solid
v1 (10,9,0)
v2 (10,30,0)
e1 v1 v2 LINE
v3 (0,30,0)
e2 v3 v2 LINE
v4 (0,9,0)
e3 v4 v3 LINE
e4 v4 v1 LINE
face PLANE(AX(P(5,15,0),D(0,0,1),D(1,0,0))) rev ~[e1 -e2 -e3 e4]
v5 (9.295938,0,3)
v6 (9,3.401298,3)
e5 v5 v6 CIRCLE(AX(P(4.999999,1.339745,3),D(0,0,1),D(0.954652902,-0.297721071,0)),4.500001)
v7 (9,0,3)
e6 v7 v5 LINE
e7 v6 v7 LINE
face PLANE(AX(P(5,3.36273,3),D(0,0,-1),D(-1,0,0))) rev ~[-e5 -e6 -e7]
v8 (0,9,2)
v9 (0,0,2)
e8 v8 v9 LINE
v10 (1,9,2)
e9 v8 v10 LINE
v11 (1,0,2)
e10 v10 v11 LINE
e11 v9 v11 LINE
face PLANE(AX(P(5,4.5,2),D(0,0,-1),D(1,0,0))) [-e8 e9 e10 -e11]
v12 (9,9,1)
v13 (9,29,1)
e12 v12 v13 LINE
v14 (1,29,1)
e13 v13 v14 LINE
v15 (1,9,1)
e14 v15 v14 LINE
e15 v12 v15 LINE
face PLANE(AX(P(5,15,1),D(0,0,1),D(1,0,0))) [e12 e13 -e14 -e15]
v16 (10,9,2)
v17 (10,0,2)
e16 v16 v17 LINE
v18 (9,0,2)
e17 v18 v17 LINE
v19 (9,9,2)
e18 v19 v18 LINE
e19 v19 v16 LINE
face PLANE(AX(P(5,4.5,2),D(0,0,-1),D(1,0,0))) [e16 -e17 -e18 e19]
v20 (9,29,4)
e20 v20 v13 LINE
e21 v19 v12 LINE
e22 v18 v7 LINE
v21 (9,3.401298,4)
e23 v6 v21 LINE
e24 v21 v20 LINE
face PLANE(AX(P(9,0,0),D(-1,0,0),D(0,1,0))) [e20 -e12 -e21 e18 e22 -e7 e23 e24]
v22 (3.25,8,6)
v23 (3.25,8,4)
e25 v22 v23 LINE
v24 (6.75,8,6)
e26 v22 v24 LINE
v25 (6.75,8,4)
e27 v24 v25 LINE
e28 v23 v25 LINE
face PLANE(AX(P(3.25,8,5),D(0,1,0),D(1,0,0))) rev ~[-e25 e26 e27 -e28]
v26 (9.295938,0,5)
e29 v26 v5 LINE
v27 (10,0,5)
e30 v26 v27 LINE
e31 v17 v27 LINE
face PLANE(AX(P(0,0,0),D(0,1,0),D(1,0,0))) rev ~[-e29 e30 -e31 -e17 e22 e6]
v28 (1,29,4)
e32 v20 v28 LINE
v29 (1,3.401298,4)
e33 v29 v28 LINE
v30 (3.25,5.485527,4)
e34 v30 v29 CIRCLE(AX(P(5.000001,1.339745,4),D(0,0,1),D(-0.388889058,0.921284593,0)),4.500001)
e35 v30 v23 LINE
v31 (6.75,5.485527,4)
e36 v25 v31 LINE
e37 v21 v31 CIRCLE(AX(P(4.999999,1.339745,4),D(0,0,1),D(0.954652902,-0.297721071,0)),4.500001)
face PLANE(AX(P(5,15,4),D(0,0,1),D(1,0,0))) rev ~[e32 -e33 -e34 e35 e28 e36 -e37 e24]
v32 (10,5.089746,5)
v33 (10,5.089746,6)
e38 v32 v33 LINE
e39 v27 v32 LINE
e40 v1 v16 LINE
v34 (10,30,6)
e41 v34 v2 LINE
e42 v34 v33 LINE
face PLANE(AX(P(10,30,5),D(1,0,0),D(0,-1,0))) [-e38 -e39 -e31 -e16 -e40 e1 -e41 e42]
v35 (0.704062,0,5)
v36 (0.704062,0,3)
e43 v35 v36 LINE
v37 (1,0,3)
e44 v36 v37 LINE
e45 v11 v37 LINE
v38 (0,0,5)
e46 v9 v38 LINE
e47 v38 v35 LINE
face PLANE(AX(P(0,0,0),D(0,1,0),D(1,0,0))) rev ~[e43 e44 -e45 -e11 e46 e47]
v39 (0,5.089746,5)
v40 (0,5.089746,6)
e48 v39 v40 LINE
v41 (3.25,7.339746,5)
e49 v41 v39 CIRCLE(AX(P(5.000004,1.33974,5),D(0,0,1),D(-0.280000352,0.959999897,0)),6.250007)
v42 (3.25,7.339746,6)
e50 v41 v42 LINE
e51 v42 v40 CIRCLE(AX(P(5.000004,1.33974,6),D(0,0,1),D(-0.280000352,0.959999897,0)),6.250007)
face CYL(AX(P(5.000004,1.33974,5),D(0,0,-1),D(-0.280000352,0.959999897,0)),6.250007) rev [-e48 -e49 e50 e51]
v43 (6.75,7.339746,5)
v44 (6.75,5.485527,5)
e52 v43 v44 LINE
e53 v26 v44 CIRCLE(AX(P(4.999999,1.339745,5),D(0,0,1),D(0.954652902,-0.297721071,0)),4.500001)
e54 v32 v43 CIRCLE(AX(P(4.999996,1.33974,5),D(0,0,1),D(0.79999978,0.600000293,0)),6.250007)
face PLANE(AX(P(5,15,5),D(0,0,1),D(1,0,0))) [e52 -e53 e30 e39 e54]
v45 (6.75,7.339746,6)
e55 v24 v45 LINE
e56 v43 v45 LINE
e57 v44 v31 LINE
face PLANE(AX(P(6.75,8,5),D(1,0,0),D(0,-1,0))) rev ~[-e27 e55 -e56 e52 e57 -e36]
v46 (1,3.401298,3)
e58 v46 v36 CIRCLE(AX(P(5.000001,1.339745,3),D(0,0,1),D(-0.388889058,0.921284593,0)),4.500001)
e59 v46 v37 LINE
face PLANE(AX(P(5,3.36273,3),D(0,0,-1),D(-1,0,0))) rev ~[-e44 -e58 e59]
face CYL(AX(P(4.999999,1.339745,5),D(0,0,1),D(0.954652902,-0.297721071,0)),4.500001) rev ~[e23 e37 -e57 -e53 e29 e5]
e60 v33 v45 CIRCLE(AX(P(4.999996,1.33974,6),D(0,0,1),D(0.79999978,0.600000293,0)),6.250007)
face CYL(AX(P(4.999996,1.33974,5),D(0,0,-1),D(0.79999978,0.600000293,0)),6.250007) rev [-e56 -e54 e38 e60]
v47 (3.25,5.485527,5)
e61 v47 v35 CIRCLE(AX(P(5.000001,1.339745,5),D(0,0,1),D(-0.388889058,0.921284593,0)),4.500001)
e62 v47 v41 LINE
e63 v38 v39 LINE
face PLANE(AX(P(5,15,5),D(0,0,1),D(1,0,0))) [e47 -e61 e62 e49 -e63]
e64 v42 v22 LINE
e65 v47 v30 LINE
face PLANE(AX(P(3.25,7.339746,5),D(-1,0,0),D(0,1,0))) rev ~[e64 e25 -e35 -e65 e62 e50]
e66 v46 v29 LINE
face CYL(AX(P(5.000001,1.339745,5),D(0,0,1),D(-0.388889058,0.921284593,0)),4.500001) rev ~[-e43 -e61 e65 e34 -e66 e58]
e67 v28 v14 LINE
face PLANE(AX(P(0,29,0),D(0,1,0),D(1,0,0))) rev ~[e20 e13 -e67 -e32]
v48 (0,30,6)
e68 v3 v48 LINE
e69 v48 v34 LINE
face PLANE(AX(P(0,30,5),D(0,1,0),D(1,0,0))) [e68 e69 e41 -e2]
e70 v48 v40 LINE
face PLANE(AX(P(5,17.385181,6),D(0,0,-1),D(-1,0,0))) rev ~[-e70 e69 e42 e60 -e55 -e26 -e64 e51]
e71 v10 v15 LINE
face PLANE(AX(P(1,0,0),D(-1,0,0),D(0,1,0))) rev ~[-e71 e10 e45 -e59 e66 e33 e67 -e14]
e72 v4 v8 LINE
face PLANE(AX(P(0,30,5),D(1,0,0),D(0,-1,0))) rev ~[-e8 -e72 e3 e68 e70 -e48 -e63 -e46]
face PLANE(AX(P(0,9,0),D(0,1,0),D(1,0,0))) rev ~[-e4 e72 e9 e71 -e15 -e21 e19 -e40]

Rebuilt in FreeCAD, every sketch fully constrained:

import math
import FreeCAD as App
import Part
import Sketcher


def faces_at(feature, points):
    """Names of the faces that lie closest to the given points."""
    faces = feature.Shape.Faces
    near = lambda p: min(range(len(faces)), key=lambda i: faces[i].distToShape(Part.Vertex(*p))[0])
    return sorted({f"Face{near(p) + 1}" for p in points})

doc = App.newDocument("Part")
params = doc.addObject("Spreadsheet::Sheet", "Params")
for row, (alias, value) in enumerate([
    ("sketch1_width", "10 mm"),
    ("sketch1_height", "30 mm"),
    ("pad1_length", "5 mm"),
    ("thickness_wall", "1 mm"),
    ("sketch2_radius", "4.500001 mm"),
    ("sketch2_width", "3.5 mm"),
    ("pocket1_length", "2 mm"),
    ("sketch3_width", "10 mm"),
    ("sketch3_height", "9 mm"),
    ("pocket2_length", "2 mm"),
    ("sketch4_width", "10 mm"),
    ("sketch4_width2", "3.5 mm"),
    ("pad2_length", "1 mm"),
], start=1):
    params.set(f"A{row}", alias)
    params.set(f"B{row}", "=" + value)
    params.setAlias(f"B{row}", alias)

body = doc.addObject("PartDesign::Body", "Body")

sketch1 = doc.addObject("Sketcher::SketchObject", "Sketch")
body.addObject(sketch1)
sketch1.AttachmentSupport = (doc.XY_Plane, [""])
sketch1.MapMode = "FlatFace"
sketch1.addGeometry(Part.LineSegment(App.Vector(0, 30, 0), App.Vector(0, 0, 0)), False)
sketch1.addGeometry(Part.LineSegment(App.Vector(0, 0, 0), App.Vector(10, 0, 0)), False)
sketch1.addGeometry(Part.LineSegment(App.Vector(10, 0, 0), App.Vector(10, 30, 0)), False)
sketch1.addGeometry(Part.LineSegment(App.Vector(10, 30, 0), App.Vector(0, 30, 0)), False)
sketch1.addConstraint(Sketcher.Constraint("Coincident", 0, 2, 1, 1))
sketch1.addConstraint(Sketcher.Constraint("Coincident", 1, 2, 2, 1))
sketch1.addConstraint(Sketcher.Constraint("Coincident", 2, 2, 3, 1))
sketch1.addConstraint(Sketcher.Constraint("Coincident", 3, 2, 0, 1))
sketch1.addConstraint(Sketcher.Constraint("Vertical", 0))
sketch1.addConstraint(Sketcher.Constraint("Horizontal", 1))
sketch1.addConstraint(Sketcher.Constraint("Vertical", 2))
sketch1.addConstraint(Sketcher.Constraint("Horizontal", 3))
sketch1.addConstraint(Sketcher.Constraint("Coincident", 0, 2, -1, 1))
sketch1.addConstraint(Sketcher.Constraint("DistanceX", 1, 1, 1, 2, 10.0))
sketch1.addConstraint(Sketcher.Constraint("DistanceY", 0, 2, 0, 1, 30.0))
sketch1.setExpression("Constraints[9]", "Params.sketch1_width")
sketch1.setExpression("Constraints[10]", "Params.sketch1_height")
pad1 = doc.addObject("PartDesign::Pad", "Pad")
body.addObject(pad1)
pad1.Profile = sketch1
pad1.setExpression("Length", "Params.pad1_length")
doc.recompute()

thickness = doc.addObject("PartDesign::Thickness", "Thickness")
body.addObject(thickness)
thickness.Base = (pad1, faces_at(pad1, [(5, 0, 2.5)]))
thickness.setExpression("Value", "Params.thickness_wall")
thickness.Reversed = True
thickness.Join = "Arc"

sketch2 = doc.addObject("Sketcher::SketchObject", "Sketch001")
body.addObject(sketch2)
sketch2.AttachmentSupport = (doc.XY_Plane, [""])
sketch2.MapMode = "FlatFace"
sketch2.AttachmentOffset = App.Placement(App.Vector(0, 0, 5), App.Rotation())
sketch2.addGeometry(Part.LineSegment(App.Vector(3.2, 8, 0), App.Vector(3.2, 5.5, 0)), False)
sketch2.addGeometry(Part.ArcOfCircle(Part.Circle(App.Vector(5, 1.3, 0), App.Vector(0, 0, 1), 4.5), math.radians(113), math.radians(197)), False)
sketch2.addGeometry(Part.LineSegment(App.Vector(0.7, 0, 0), App.Vector(9.3, 0, 0)), False)
sketch2.addGeometry(Part.ArcOfCircle(Part.Circle(App.Vector(5, 1.3, 0), App.Vector(0, 0, 1), 4.5), math.radians(-17), math.radians(67)), False)
sketch2.addGeometry(Part.LineSegment(App.Vector(6.8, 5.5, 0), App.Vector(6.8, 8, 0)), False)
sketch2.addGeometry(Part.LineSegment(App.Vector(6.8, 8, 0), App.Vector(3.2, 8, 0)), False)
sketch2.addConstraint(Sketcher.Constraint("Coincident", 0, 2, 1, 1))
sketch2.addConstraint(Sketcher.Constraint("Coincident", 1, 2, 2, 1))
sketch2.addConstraint(Sketcher.Constraint("Coincident", 2, 2, 3, 1))
sketch2.addConstraint(Sketcher.Constraint("Coincident", 3, 2, 4, 1))
sketch2.addConstraint(Sketcher.Constraint("Coincident", 4, 2, 5, 1))
sketch2.addConstraint(Sketcher.Constraint("Coincident", 5, 2, 0, 1))
sketch2.addConstraint(Sketcher.Constraint("Vertical", 0))
sketch2.addConstraint(Sketcher.Constraint("Horizontal", 2))
sketch2.addConstraint(Sketcher.Constraint("Vertical", 4))
sketch2.addConstraint(Sketcher.Constraint("Horizontal", 5))
sketch2.addConstraint(Sketcher.Constraint("Coincident", 3, 3, 1, 3))
sketch2.addConstraint(Sketcher.Constraint("Equal", 1, 3))
sketch2.addConstraint(Sketcher.Constraint("PointOnObject", 1, 2, -1))
sketch2.addConstraint(Sketcher.Constraint("Horizontal", 0, 2, 3, 2))
sketch2.addConstraint(Sketcher.Constraint("Radius", 1, 4.500001))
sketch2.addConstraint(Sketcher.Constraint("DistanceX", 5, 2, 5, 1, 3.5))
sketch2.addConstraint(Sketcher.Constraint("DistanceX", -1, 1, 1, 3, 5.000001))
sketch2.addConstraint(Sketcher.Constraint("DistanceY", -1, 1, 4, 2, 8.0))
sketch2.addConstraint(Sketcher.Constraint("DistanceX", 2, 1, 2, 2, 8.591876))
sketch2.setExpression("Constraints[14]", "Params.sketch2_radius")
sketch2.setExpression("Constraints[15]", "Params.sketch2_width")
pocket1 = doc.addObject("PartDesign::Pocket", "Pocket")
body.addObject(pocket1)
pocket1.Profile = sketch2
pocket1.setExpression("Length", "Params.pocket1_length")

sketch3 = doc.addObject("Sketcher::SketchObject", "Sketch002")
body.addObject(sketch3)
sketch3.AttachmentSupport = (doc.XY_Plane, [""])
sketch3.MapMode = "FlatFace"
sketch3.addGeometry(Part.LineSegment(App.Vector(0, 0, 0), App.Vector(0, 9, 0)), False)
sketch3.addGeometry(Part.LineSegment(App.Vector(0, 9, 0), App.Vector(10, 9, 0)), False)
sketch3.addGeometry(Part.LineSegment(App.Vector(10, 9, 0), App.Vector(10, 0, 0)), False)
sketch3.addGeometry(Part.LineSegment(App.Vector(10, 0, 0), App.Vector(0, 0, 0)), False)
sketch3.addConstraint(Sketcher.Constraint("Coincident", 0, 2, 1, 1))
sketch3.addConstraint(Sketcher.Constraint("Coincident", 1, 2, 2, 1))
sketch3.addConstraint(Sketcher.Constraint("Coincident", 2, 2, 3, 1))
sketch3.addConstraint(Sketcher.Constraint("Coincident", 3, 2, 0, 1))
sketch3.addConstraint(Sketcher.Constraint("Vertical", 0))
sketch3.addConstraint(Sketcher.Constraint("Horizontal", 1))
sketch3.addConstraint(Sketcher.Constraint("Vertical", 2))
sketch3.addConstraint(Sketcher.Constraint("Horizontal", 3))
sketch3.addConstraint(Sketcher.Constraint("Coincident", 3, 2, -1, 1))
sketch3.addConstraint(Sketcher.Constraint("DistanceX", 1, 1, 1, 2, 10.0))
sketch3.addConstraint(Sketcher.Constraint("DistanceY", 0, 1, 0, 2, 9.0))
sketch3.setExpression("Constraints[9]", "Params.sketch3_width")
sketch3.setExpression("Constraints[10]", "Params.sketch3_height")
pocket2 = doc.addObject("PartDesign::Pocket", "Pocket001")
body.addObject(pocket2)
pocket2.Profile = sketch3
pocket2.setExpression("Length", "Params.pocket2_length")
pocket2.Reversed = True

sketch4 = doc.addObject("Sketcher::SketchObject", "Sketch003")
body.addObject(sketch4)
sketch4.AttachmentSupport = (doc.XY_Plane, [""])
sketch4.MapMode = "FlatFace"
sketch4.AttachmentOffset = App.Placement(App.Vector(0, 0, 5), App.Rotation())
sketch4.addGeometry(Part.LineSegment(App.Vector(10, 30, 0), App.Vector(0, 30, 0)), False)
sketch4.addGeometry(Part.LineSegment(App.Vector(0, 30, 0), App.Vector(0, 5.1, 0)), False)
sketch4.addGeometry(Part.ArcOfCircle(Part.Circle(App.Vector(5, 1.3, 0), App.Vector(0, 0, 1), 6.3), math.radians(106), math.radians(143)), False)
sketch4.addGeometry(Part.LineSegment(App.Vector(3.2, 7.3, 0), App.Vector(3.2, 8, 0)), False)
sketch4.addGeometry(Part.LineSegment(App.Vector(3.2, 8, 0), App.Vector(6.8, 8, 0)), False)
sketch4.addGeometry(Part.LineSegment(App.Vector(6.8, 8, 0), App.Vector(6.8, 7.3, 0)), False)
sketch4.addGeometry(Part.ArcOfCircle(Part.Circle(App.Vector(5, 1.3, 0), App.Vector(0, 0, 1), 6.3), math.radians(37), math.radians(74)), False)
sketch4.addGeometry(Part.LineSegment(App.Vector(10, 5.1, 0), App.Vector(10, 30, 0)), False)
sketch4.addConstraint(Sketcher.Constraint("Coincident", 0, 2, 1, 1))
sketch4.addConstraint(Sketcher.Constraint("Coincident", 1, 2, 2, 2))
sketch4.addConstraint(Sketcher.Constraint("Coincident", 2, 1, 3, 1))
sketch4.addConstraint(Sketcher.Constraint("Coincident", 3, 2, 4, 1))
sketch4.addConstraint(Sketcher.Constraint("Coincident", 4, 2, 5, 1))
sketch4.addConstraint(Sketcher.Constraint("Coincident", 5, 2, 6, 2))
sketch4.addConstraint(Sketcher.Constraint("Coincident", 6, 1, 7, 1))
sketch4.addConstraint(Sketcher.Constraint("Coincident", 7, 2, 0, 1))
sketch4.addConstraint(Sketcher.Constraint("Horizontal", 0))
sketch4.addConstraint(Sketcher.Constraint("Vertical", 1))
sketch4.addConstraint(Sketcher.Constraint("Vertical", 3))
sketch4.addConstraint(Sketcher.Constraint("Horizontal", 4))
sketch4.addConstraint(Sketcher.Constraint("Vertical", 5))
sketch4.addConstraint(Sketcher.Constraint("Vertical", 7))
sketch4.addConstraint(Sketcher.Constraint("Coincident", 6, 3, 2, 3))
sketch4.addConstraint(Sketcher.Constraint("Equal", 2, 6))
sketch4.addConstraint(Sketcher.Constraint("PointOnObject", 0, 2, -2))
sketch4.addConstraint(Sketcher.Constraint("Horizontal", 2, 1, 5, 2))
sketch4.addConstraint(Sketcher.Constraint("Horizontal", 1, 2, 6, 1))
sketch4.addConstraint(Sketcher.Constraint("DistanceX", 0, 2, 0, 1, 10.0))
sketch4.addConstraint(Sketcher.Constraint("DistanceX", 4, 1, 4, 2, 3.5))
sketch4.addConstraint(Sketcher.Constraint("DistanceY", -1, 1, 0, 2, 30.0))
sketch4.addConstraint(Sketcher.Constraint("DistanceY", -1, 1, 3, 2, 8.0))
sketch4.addConstraint(Sketcher.Constraint("DistanceY", 1, 2, 2, 1, 2.25))
sketch4.addConstraint(Sketcher.Constraint("DistanceY", 1, 2, 1, 1, 24.910254))
sketch4.setExpression("Constraints[19]", "Params.sketch4_width")
sketch4.setExpression("Constraints[20]", "Params.sketch4_width2")
pad2 = doc.addObject("PartDesign::Pad", "Pad001")
body.addObject(pad2)
pad2.Profile = sketch4
pad2.setExpression("Length", "Params.pad2_length")

doc.recompute()
